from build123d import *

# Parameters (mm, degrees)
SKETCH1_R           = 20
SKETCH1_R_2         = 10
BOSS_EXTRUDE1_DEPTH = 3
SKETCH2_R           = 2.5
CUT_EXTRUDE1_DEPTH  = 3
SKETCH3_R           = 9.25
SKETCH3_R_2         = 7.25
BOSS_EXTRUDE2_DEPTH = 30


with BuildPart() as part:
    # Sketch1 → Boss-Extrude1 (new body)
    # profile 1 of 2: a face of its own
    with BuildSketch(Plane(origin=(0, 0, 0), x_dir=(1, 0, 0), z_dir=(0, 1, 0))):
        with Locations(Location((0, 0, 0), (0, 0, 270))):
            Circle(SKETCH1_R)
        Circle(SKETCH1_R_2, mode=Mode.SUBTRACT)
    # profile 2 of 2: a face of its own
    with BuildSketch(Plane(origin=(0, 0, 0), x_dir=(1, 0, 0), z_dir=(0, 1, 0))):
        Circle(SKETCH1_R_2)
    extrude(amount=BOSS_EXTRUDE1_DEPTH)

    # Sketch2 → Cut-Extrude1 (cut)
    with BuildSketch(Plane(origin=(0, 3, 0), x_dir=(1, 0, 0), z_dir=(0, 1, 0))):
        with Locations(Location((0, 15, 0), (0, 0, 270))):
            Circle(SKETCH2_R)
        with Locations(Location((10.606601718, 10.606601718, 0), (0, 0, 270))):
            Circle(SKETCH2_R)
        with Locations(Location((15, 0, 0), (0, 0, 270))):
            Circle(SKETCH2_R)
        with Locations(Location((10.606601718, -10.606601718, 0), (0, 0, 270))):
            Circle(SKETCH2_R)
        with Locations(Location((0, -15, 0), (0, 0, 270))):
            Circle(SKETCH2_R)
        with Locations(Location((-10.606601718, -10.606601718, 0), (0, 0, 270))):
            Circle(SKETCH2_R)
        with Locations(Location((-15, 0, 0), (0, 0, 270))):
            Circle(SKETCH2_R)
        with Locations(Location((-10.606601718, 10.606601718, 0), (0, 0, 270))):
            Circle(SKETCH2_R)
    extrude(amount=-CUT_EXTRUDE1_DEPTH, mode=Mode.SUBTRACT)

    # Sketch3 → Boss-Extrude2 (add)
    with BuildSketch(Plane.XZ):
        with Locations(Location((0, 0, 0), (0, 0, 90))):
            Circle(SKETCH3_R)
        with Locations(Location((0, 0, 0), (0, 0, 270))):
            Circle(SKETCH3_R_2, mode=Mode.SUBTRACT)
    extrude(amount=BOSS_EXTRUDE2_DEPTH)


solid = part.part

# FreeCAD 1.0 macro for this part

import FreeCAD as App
import Part
import Sketcher

V = App.Vector

doc = App.newDocument("Part")
params = doc.addObject("Spreadsheet::Sheet", "Params")
for row, (alias, value) in enumerate([
    ("sketch1_diameter", "40 mm"),
    ("pad1_length", "3 mm"),
    ("sketch2_diameter", "5 mm"),
    ("pocket1_length", "3 mm"),
    ("sketch3_diameter", "18.5 mm"),
    ("sketch3_diameter2", "14.5 mm"),
    ("pad2_length", "30 mm"),
], start=1):
    params.set(f"A{row}", alias)
    params.set(f"B{row}", "=" + value)
    params.setAlias(f"B{row}", alias)

body = doc.addObject("PartDesign::Body", "Body")

# Sketch on XZ plane
sketch1 = body.newObject("Sketcher::SketchObject", "Sketch")
sketch1.AttachmentSupport = (doc.getObject("XZ_Plane"), [""])
sketch1.MapMode = "FlatFace"
sketch1.addGeometry(Part.Circle(V(0, 0, 0), V(0, 0, 1), 20), False)
sketch1.addConstraint([
    Sketcher.Constraint("Coincident", 0, 3, -1, 1),
    Sketcher.Constraint("Diameter", 0, 40.0),
])
sketch1.setExpression("Constraints[1]", "Params.sketch1_diameter")
pad1 = body.newObject("PartDesign::Pad", "Pad")
pad1.Profile = sketch1
pad1.setExpression("Length", "Params.pad1_length")
pad1.Reversed = True

# Sketch on XZ plane
sketch2 = body.newObject("Sketcher::SketchObject", "Sketch001")
sketch2.AttachmentSupport = (doc.getObject("XZ_Plane"), [""])
sketch2.MapMode = "FlatFace"
sketch2.AttachmentOffset = App.Placement(V(0, 0, -3), App.Rotation())
sketch2.addGeometry([
    Part.Circle(V(0, -15, 0), V(0, 0, 1), 2.5),  # 0
    Part.Circle(V(10.6, -10.6, 0), V(0, 0, 1), 2.5),  # 1
    Part.Circle(V(15, 0, 0), V(0, 0, 1), 2.5),  # 2
    Part.Circle(V(10.6, 10.6, 0), V(0, 0, 1), 2.5),  # 3
    Part.Circle(V(0, 15, 0), V(0, 0, 1), 2.5),  # 4
    Part.Circle(V(-10.6, 10.6, 0), V(0, 0, 1), 2.5),  # 5
    Part.Circle(V(-15, 0, 0), V(0, 0, 1), 2.5),  # 6
    Part.Circle(V(-10.6, -10.6, 0), V(0, 0, 1), 2.5),  # 7
], False)
sketch2.addConstraint([
    Sketcher.Constraint("Equal", 0, 1),
    Sketcher.Constraint("Equal", 1, 2),
    Sketcher.Constraint("Equal", 2, 3),
    Sketcher.Constraint("Equal", 3, 4),
    Sketcher.Constraint("Equal", 4, 5),
    Sketcher.Constraint("Equal", 5, 6),
    Sketcher.Constraint("Equal", 6, 7),
    Sketcher.Constraint("Symmetric", 0, 3, 4, 3, -1, 1),
    Sketcher.Constraint("Symmetric", 1, 3, 5, 3, -1, 1),
    Sketcher.Constraint("Symmetric", 2, 3, 6, 3, -1, 1),
    Sketcher.Constraint("Symmetric", 3, 3, 7, 3, -1, 1),
    Sketcher.Constraint("Symmetric", 3, 3, 5, 3, -2),
    Sketcher.Constraint("PointOnObject", 0, 3, -2),
    Sketcher.Constraint("PointOnObject", 2, 3, -1),
    Sketcher.Constraint("Diameter", 0, 5.0),
    Sketcher.Constraint("DistanceY", 0, 3, -1, 1, 15.0),
    Sketcher.Constraint("DistanceX", -1, 1, 2, 3, 15.0),
    Sketcher.Constraint("DistanceX", -1, 1, 1, 3, 10.606602),
    Sketcher.Constraint("DistanceY", 1, 3, -1, 1, 10.606602),
])
sketch2.setExpression("Constraints[14]", "Params.sketch2_diameter")
pocket1 = body.newObject("PartDesign::Pocket", "Pocket")
pocket1.Profile = sketch2
pocket1.setExpression("Length", "Params.pocket1_length")
pocket1.Reversed = True

# Sketch on XZ plane
sketch3 = body.newObject("Sketcher::SketchObject", "Sketch002")
sketch3.AttachmentSupport = (doc.getObject("XZ_Plane"), [""])
sketch3.MapMode = "FlatFace"
sketch3.addGeometry([
    Part.Circle(V(0, 0, 0), V(0, 0, 1), 9),
    Part.Circle(V(0, 0, 0), V(0, 0, 1), 7),
], False)
sketch3.addConstraint([
    Sketcher.Constraint("Coincident", 0, 3, -1, 1),
    Sketcher.Constraint("Coincident", 1, 3, -1, 1),
    Sketcher.Constraint("Diameter", 0, 18.5),
    Sketcher.Constraint("Diameter", 1, 14.5),
])
sketch3.setExpression("Constraints[2]", "Params.sketch3_diameter")
sketch3.setExpression("Constraints[3]", "Params.sketch3_diameter2")
pad2 = body.newObject("PartDesign::Pad", "Pad001")
pad2.Profile = sketch3
pad2.setExpression("Length", "Params.pad2_length")

doc.recompute()
